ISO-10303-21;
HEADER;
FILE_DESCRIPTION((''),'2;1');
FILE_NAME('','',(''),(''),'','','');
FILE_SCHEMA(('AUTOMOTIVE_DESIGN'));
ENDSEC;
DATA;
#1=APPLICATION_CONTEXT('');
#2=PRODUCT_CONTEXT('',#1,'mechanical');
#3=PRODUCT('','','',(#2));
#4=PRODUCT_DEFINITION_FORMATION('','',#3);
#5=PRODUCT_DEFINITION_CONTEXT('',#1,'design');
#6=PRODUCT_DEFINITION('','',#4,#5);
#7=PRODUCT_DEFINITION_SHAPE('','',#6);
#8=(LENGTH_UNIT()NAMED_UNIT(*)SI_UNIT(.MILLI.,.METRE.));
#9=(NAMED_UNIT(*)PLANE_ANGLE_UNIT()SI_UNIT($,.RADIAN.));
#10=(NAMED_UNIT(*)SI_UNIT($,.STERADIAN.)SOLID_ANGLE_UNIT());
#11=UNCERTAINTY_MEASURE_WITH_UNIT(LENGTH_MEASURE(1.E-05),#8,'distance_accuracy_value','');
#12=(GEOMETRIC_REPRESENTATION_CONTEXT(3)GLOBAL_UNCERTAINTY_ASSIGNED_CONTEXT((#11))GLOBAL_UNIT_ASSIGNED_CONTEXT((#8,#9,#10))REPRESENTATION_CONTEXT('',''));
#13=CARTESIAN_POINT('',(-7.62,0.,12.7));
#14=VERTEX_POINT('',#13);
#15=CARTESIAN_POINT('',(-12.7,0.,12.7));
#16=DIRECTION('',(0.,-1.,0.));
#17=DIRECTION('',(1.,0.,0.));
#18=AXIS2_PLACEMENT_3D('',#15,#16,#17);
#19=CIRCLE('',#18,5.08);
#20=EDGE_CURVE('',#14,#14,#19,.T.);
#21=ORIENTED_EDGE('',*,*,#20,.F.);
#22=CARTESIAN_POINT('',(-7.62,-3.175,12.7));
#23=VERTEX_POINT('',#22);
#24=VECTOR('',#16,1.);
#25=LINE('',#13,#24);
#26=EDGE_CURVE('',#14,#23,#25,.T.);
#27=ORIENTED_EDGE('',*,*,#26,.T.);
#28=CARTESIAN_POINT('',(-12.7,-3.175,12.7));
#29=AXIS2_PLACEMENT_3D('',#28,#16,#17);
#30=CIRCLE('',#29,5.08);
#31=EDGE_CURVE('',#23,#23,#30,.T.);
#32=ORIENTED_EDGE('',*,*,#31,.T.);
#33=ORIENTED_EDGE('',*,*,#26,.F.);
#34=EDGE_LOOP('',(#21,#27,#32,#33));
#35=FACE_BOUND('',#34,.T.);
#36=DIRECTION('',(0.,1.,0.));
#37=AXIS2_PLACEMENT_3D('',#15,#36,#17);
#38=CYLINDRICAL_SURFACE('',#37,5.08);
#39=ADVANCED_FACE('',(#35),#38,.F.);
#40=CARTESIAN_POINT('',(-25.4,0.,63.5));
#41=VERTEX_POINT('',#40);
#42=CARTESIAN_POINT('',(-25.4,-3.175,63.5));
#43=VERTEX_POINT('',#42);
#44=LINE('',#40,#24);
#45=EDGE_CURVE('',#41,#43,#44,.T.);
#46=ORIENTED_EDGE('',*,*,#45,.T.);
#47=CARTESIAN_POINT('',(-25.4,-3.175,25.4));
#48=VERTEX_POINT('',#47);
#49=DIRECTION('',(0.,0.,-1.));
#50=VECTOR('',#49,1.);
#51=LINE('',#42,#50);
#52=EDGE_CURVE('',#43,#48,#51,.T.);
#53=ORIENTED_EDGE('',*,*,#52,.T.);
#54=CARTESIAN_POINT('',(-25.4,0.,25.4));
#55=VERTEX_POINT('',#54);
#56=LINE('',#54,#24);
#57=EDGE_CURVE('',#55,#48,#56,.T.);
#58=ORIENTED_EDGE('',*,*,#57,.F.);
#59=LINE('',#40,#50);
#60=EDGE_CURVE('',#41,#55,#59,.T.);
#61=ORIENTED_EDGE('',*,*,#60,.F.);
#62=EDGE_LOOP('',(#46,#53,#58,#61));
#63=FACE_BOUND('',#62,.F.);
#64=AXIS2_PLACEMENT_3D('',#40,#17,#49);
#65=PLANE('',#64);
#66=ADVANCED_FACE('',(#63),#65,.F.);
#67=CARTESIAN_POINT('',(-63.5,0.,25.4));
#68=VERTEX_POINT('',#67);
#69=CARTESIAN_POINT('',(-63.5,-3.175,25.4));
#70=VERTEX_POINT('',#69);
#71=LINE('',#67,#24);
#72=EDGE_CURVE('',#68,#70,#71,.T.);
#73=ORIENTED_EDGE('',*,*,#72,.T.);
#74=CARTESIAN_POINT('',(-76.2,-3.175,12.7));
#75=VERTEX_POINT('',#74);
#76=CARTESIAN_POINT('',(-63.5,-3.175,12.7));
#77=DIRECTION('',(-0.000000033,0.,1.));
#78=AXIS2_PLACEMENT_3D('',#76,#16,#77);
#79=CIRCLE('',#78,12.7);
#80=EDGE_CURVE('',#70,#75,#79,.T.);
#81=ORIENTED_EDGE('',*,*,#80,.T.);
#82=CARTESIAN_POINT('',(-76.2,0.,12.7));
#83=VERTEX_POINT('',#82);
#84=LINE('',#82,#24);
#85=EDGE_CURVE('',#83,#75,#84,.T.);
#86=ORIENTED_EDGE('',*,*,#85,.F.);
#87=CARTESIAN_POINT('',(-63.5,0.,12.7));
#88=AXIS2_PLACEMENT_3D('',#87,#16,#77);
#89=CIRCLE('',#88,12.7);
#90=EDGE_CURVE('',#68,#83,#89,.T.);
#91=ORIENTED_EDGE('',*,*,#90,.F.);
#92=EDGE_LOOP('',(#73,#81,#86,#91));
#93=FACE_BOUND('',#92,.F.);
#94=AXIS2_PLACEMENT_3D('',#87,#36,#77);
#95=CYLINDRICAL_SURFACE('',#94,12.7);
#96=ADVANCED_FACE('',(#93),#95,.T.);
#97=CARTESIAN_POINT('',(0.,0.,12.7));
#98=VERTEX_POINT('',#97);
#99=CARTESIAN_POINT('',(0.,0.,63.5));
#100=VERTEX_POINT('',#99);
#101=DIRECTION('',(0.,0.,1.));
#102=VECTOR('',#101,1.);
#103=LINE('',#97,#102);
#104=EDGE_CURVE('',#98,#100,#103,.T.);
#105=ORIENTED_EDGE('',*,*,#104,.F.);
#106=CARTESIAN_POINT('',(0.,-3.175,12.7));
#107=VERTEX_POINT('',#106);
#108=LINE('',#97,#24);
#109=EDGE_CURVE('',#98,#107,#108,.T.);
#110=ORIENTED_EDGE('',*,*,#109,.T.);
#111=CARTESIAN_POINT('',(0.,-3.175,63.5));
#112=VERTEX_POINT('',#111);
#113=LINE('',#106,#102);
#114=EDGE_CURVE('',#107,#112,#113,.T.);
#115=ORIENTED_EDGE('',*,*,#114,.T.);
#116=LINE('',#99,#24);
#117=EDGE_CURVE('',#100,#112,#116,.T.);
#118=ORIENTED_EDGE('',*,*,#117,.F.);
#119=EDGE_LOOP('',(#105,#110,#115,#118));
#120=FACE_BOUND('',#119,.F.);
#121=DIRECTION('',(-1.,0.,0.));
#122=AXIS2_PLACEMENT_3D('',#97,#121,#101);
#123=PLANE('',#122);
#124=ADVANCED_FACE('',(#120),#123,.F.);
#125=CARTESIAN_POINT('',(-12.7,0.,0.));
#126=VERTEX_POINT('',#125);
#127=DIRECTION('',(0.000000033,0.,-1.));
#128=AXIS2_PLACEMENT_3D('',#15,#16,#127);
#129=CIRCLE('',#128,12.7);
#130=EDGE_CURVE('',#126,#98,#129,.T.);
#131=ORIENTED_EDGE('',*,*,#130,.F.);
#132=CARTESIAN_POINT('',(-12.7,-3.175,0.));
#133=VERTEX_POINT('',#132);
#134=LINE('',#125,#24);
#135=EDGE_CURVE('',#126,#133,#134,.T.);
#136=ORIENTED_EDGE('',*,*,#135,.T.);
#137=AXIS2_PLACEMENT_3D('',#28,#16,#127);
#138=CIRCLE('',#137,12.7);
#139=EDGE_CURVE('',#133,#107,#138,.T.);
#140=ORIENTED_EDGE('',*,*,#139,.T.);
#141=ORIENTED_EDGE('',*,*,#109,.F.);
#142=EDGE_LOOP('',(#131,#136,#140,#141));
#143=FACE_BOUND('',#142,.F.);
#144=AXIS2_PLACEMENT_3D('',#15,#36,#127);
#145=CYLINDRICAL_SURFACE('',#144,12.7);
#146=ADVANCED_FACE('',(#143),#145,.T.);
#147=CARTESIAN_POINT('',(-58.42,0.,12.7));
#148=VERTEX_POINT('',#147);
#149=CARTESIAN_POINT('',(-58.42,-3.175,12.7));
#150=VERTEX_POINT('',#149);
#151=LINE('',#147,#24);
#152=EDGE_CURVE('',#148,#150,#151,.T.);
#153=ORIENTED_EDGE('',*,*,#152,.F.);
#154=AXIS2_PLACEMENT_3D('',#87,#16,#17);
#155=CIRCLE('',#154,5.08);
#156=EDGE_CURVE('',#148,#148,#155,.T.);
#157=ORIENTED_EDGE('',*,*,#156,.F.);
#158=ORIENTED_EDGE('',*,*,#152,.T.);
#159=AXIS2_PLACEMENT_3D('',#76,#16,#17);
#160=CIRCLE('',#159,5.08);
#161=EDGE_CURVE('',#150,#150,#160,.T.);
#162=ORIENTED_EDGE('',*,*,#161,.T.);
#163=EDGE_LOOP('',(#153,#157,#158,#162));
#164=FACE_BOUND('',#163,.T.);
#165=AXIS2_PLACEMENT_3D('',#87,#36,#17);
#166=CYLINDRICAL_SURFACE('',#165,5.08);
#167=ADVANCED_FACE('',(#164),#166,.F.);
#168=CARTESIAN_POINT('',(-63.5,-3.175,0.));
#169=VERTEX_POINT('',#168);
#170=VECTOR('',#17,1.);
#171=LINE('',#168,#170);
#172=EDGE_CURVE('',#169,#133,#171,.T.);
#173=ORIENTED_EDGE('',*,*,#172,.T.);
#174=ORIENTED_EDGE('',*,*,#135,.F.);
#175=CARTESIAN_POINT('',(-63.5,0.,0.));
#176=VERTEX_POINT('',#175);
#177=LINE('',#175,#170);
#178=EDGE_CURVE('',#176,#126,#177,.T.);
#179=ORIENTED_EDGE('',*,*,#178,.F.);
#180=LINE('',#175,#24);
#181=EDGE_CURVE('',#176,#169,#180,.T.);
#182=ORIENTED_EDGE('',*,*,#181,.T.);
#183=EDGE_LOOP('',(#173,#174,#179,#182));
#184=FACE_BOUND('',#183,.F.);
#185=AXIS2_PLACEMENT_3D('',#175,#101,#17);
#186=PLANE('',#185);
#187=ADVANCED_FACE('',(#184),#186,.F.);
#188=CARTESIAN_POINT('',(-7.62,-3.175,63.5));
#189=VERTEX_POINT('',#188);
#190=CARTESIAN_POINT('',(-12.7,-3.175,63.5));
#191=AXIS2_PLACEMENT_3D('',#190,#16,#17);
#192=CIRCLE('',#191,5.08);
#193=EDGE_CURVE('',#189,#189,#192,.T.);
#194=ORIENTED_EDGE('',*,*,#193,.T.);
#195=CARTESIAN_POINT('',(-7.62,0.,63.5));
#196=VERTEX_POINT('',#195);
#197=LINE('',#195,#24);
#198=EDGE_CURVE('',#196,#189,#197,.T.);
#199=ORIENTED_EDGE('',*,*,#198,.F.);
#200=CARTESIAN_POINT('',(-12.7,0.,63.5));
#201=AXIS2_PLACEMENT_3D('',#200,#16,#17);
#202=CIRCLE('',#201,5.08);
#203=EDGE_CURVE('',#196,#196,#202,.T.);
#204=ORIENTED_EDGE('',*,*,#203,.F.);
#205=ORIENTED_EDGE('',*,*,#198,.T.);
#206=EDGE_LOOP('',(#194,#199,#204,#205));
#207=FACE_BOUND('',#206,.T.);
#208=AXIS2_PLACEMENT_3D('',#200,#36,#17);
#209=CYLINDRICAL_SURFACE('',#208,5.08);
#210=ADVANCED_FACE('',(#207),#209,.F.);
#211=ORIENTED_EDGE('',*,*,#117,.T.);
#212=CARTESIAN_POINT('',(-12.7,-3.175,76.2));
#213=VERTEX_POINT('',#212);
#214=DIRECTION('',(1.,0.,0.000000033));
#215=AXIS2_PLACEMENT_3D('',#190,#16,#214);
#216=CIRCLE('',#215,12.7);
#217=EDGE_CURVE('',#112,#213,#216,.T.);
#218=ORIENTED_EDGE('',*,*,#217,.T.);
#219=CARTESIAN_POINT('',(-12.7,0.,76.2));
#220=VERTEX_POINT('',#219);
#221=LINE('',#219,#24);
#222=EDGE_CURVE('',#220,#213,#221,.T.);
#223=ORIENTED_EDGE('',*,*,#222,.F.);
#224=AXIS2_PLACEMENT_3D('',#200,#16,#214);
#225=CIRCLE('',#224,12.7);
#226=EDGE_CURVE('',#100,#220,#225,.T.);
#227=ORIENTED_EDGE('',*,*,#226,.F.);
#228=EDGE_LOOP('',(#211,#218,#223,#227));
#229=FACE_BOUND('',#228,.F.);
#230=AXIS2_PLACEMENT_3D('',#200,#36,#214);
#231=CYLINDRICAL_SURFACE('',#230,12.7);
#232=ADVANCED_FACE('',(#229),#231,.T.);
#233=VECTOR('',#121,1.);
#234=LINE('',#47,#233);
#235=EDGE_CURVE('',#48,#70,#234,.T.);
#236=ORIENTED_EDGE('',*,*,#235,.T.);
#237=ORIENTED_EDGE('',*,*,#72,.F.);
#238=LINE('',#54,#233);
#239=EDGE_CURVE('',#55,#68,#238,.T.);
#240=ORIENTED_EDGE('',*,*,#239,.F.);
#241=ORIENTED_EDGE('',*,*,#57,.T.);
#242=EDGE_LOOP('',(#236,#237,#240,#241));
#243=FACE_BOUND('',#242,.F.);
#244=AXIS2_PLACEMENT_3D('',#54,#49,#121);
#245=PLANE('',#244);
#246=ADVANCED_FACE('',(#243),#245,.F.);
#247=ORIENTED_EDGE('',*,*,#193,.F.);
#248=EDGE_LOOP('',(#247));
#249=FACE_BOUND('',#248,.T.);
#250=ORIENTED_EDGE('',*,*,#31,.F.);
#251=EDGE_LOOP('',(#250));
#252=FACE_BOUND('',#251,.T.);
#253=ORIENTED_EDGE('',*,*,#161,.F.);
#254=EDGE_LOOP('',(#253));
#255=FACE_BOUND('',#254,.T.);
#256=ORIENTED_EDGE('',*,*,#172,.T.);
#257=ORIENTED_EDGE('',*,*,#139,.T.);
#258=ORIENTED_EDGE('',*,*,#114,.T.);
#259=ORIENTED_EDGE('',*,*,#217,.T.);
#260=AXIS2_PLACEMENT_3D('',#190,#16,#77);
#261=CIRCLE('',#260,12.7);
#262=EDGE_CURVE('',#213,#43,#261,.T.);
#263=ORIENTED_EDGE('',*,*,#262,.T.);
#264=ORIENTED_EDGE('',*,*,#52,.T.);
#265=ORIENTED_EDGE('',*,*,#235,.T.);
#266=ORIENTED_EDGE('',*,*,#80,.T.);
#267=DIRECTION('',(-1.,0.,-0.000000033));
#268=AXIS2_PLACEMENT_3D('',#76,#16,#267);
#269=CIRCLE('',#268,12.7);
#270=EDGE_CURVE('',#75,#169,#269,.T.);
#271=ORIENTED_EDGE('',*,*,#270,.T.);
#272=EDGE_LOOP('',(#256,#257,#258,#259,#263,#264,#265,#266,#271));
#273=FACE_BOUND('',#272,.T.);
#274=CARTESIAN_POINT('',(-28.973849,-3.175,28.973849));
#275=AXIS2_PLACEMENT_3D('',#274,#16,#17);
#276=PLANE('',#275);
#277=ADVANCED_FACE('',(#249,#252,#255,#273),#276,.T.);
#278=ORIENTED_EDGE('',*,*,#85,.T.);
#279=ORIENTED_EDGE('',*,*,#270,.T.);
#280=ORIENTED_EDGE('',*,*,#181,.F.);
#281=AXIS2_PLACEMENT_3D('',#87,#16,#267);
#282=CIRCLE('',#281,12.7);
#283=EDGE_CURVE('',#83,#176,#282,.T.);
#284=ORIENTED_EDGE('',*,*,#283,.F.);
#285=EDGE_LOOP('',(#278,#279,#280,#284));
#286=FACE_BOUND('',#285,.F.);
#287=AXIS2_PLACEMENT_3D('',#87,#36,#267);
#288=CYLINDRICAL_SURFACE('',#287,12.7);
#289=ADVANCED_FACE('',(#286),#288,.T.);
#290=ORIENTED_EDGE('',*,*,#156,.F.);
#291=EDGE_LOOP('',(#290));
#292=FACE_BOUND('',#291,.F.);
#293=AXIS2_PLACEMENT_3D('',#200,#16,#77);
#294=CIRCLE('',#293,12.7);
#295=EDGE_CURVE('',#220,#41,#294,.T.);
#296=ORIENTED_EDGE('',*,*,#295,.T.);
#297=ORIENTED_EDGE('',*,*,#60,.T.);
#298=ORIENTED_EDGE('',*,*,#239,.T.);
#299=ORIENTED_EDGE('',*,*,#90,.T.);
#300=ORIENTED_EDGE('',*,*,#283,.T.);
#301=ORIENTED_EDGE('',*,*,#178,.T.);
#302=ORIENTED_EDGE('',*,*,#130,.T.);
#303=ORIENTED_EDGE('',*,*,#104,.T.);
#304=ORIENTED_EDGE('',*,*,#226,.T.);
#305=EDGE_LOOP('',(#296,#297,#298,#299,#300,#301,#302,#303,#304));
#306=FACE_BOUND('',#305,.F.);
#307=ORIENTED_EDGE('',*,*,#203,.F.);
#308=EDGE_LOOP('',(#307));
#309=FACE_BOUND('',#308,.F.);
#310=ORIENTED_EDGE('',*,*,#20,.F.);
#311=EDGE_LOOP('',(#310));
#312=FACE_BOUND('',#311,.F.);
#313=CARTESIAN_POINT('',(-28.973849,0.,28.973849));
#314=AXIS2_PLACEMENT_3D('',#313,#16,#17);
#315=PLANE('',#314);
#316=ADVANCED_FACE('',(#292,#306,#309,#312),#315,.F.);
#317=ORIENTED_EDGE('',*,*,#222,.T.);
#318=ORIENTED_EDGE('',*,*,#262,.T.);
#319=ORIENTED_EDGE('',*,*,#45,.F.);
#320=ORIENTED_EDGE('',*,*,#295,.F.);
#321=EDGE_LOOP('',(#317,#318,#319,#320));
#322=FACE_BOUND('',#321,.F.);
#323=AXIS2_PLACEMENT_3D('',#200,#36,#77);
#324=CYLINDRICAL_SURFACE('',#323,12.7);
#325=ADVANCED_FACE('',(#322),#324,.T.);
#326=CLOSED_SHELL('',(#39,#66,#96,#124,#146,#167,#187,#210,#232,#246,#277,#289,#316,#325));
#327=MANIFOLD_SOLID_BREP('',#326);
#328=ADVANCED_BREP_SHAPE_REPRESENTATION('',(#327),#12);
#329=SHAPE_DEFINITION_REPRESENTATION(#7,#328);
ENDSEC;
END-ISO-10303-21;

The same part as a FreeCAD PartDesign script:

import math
import FreeCAD as App
import Part
import Sketcher
Q = App.Units.Quantity

doc = App.newDocument("Part")
params = doc.addObject("Spreadsheet::Sheet", "Params")
for row, (alias, value) in enumerate([
    ("sketch1_diameter", "0.4 in"),
    ("sketch1_radius", "0.5 in"),
    ("sketch1_width", "2 in"),
    ("pad1_length", "0.125 in"),
], start=1):
    params.set(f"A{row}", alias)
    params.set(f"B{row}", "=" + value)
    params.setAlias(f"B{row}", alias)

body = doc.addObject("PartDesign::Body", "Body")

# Sketch on XZ plane
sketch1 = body.newObject("Sketcher::SketchObject", "Sketch")
sketch1.AttachmentSupport = (doc.getObject("XZ_Plane"), [""])
sketch1.MapMode = "FlatFace"
sketch1.addGeometry([
    Part.ArcOfCircle(Part.Circle(App.Vector(-13, 13, 0), App.Vector(0, 0, 1), 13), math.radians(-90), math.radians(0)),  # 0
    Part.LineSegment(App.Vector(0, 13, 0), App.Vector(0, 64, 0)),  # 1
    Part.ArcOfCircle(Part.Circle(App.Vector(-13, 63, 0), App.Vector(0, 0, 1), 13), math.radians(0), math.radians(90)),  # 2
    Part.ArcOfCircle(Part.Circle(App.Vector(-13, 63, 0), App.Vector(0, 0, 1), 13), math.radians(90), math.radians(180)),  # 3
    Part.LineSegment(App.Vector(-25, 64, 0), App.Vector(-25, 25, 0)),  # 4
    Part.LineSegment(App.Vector(-25, 25, 0), App.Vector(-64, 25, 0)),  # 5
    Part.ArcOfCircle(Part.Circle(App.Vector(-63, 13, 0), App.Vector(0, 0, 1), 13), math.radians(90), math.radians(180)),  # 6
    Part.ArcOfCircle(Part.Circle(App.Vector(-63, 13, 0), App.Vector(0, 0, 1), 13), math.radians(-180), math.radians(-90)),  # 7
    Part.LineSegment(App.Vector(-64, 0, 0), App.Vector(-13, 0, 0)),  # 8
    Part.Circle(App.Vector(-64, 13, 0), App.Vector(0, 0, 1), 5),  # 9
    Part.Circle(App.Vector(-13, 13, 0), App.Vector(0, 0, 1), 5),  # 10
    Part.Circle(App.Vector(-13, 64, 0), App.Vector(0, 0, 1), 5),  # 11
], False)
sketch1.addConstraint([
    Sketcher.Constraint("Tangent", 0, 2, 1, 1),
    Sketcher.Constraint("Tangent", 1, 2, 2, 1),
    Sketcher.Constraint("Tangent", 2, 2, 3, 1),
    Sketcher.Constraint("Tangent", 3, 2, 4, 1),
    Sketcher.Constraint("Coincident", 4, 2, 5, 1),
    Sketcher.Constraint("Tangent", 5, 2, 6, 1),
    Sketcher.Constraint("Tangent", 6, 2, 7, 1),
    Sketcher.Constraint("Tangent", 7, 2, 8, 1),
    Sketcher.Constraint("Tangent", 8, 2, 0, 1),
    Sketcher.Constraint("Vertical", 1),
    Sketcher.Constraint("Vertical", 4),
    Sketcher.Constraint("Horizontal", 5),
    Sketcher.Constraint("Horizontal", 8),
    Sketcher.Constraint("Coincident", 9, 3, 6, 3),
    Sketcher.Constraint("Coincident", 10, 3, 0, 3),
    Sketcher.Constraint("Coincident", 11, 3, 2, 3),
    Sketcher.Constraint("Equal", 0, 2),
    Sketcher.Constraint("Equal", 2, 3),
    Sketcher.Constraint("Equal", 3, 6),
    Sketcher.Constraint("Equal", 6, 7),
    Sketcher.Constraint("Equal", 9, 10),
    Sketcher.Constraint("Equal", 10, 11),
    Sketcher.Constraint("PointOnObject", 0, 2, -2),
    Sketcher.Constraint("PointOnObject", 7, 2, -1),
    Sketcher.Constraint("Horizontal", 0, 2, 6, 2),
    Sketcher.Constraint("Vertical", 11, 3, 2, 2),
    Sketcher.Constraint("Equal", 8, 1),
    Sketcher.Constraint("Diameter", 9, Q("0.4 in")),
    Sketcher.Constraint("Radius", 0, Q("0.5 in")),
    Sketcher.Constraint("DistanceX", 8, 1, 8, 2, Q("2 in")),
])
sketch1.setExpression("Constraints[27]", "Params.sketch1_diameter")
sketch1.setExpression("Constraints[28]", "Params.sketch1_radius")
sketch1.setExpression("Constraints[29]", "Params.sketch1_width")
pad1 = body.newObject("PartDesign::Pad", "Pad")
pad1.Profile = sketch1
pad1.setExpression("Length", "Params.pad1_length")

doc.recompute()
